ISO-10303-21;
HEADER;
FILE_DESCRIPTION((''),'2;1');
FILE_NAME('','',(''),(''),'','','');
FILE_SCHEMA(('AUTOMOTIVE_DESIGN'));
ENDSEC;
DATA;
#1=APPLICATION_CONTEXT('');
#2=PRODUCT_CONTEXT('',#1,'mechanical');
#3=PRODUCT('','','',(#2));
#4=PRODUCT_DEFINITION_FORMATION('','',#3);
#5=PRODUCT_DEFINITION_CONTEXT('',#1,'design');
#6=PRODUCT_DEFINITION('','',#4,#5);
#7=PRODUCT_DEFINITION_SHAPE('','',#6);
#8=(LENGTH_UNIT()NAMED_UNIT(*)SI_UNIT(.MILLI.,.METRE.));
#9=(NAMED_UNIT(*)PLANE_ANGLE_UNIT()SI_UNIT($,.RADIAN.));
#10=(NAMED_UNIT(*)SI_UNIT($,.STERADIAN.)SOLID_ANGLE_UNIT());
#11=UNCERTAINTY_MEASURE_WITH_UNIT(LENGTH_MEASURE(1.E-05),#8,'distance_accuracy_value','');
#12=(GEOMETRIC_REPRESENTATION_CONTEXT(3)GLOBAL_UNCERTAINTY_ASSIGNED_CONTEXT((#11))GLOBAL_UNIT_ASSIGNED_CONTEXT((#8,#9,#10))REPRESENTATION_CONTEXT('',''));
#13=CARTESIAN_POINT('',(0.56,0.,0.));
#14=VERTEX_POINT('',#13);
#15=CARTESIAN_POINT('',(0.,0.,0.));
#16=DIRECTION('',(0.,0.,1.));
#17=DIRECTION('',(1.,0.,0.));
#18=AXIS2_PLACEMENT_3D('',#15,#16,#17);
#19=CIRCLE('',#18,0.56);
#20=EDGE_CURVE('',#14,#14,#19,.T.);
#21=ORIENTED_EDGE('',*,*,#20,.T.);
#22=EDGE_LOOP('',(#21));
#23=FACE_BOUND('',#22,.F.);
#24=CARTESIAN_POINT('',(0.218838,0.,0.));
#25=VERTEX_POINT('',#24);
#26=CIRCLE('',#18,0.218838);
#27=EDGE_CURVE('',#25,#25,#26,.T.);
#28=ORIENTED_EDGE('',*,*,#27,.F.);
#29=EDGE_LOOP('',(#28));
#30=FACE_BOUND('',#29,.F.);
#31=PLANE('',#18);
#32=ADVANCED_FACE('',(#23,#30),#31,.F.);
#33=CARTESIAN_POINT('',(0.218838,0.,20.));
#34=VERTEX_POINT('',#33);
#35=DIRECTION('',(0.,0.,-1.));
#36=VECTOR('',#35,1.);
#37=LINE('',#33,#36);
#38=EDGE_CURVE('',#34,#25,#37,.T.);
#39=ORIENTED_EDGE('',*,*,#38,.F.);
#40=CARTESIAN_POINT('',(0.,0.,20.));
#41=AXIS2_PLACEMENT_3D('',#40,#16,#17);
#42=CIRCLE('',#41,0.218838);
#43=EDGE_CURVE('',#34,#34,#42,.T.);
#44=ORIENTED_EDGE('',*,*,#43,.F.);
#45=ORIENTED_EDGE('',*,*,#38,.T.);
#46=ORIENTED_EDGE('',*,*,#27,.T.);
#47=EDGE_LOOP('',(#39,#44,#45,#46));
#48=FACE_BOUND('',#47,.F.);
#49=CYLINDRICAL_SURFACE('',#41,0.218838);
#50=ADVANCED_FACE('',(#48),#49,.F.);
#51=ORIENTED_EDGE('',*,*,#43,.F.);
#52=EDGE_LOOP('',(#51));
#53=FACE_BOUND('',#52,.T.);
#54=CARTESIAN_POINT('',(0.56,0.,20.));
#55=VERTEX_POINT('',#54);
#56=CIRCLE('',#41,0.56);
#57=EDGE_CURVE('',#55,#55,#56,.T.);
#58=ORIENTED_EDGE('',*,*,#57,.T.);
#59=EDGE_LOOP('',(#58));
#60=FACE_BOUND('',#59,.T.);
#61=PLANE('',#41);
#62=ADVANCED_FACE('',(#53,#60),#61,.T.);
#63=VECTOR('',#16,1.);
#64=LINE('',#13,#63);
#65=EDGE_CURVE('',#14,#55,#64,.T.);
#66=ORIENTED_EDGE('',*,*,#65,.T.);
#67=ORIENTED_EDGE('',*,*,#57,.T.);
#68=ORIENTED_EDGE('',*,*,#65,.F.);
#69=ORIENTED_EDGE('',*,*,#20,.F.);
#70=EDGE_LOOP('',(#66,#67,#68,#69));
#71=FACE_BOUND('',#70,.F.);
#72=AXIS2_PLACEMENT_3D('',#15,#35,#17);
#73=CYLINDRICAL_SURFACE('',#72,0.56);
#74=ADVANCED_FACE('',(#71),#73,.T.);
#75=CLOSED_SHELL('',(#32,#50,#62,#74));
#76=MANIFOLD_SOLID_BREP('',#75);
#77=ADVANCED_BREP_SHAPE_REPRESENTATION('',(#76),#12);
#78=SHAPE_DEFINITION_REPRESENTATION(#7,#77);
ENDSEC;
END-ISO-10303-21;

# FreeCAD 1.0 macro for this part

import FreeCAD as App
import Part
import Sketcher
from FreeCAD import Vector

doc = App.newDocument("Part")
body = doc.addObject("PartDesign::Body", "Body")

# Sketch on XY plane
sketch1 = body.newObject("Sketcher::SketchObject", "Sketch")
sketch1.AttachmentSupport = (doc.getObject("XY_Plane"), [""])
sketch1.MapMode = "FlatFace"
sketch1.addGeometry(Part.Circle(Vector(0, 0, 0), Vector(0, 0, 1), 0.6), False)
sketch1.addConstraint(Sketcher.Constraint("Coincident", 0, 3, -1, 1))
sketch1.addConstraint(Sketcher.Constraint("Diameter", 0, 1.12))
pad1 = body.newObject("PartDesign::Pad", "Pad")
pad1.Profile = sketch1
pad1.Length = 20

# Sketch on XY plane
sketch2 = body.newObject("Sketcher::SketchObject", "Sketch001")
sketch2.AttachmentSupport = (doc.getObject("XY_Plane"), [""])
sketch2.MapMode = "FlatFace"
sketch2.AttachmentOffset = App.Placement(Vector(0, 0, 20), App.Rotation())
sketch2.addGeometry(Part.Circle(Vector(0, 0, 0), Vector(0, 0, 1), 0.22), False)
sketch2.addConstraint(Sketcher.Constraint("Coincident", 0, 3, -1, 1))
sketch2.addConstraint(Sketcher.Constraint("Diameter", 0, 0.437676))
pocket1 = body.newObject("PartDesign::Pocket", "Pocket")
pocket1.Profile = sketch2
pocket1.Type = "ThroughAll"

doc.recompute()
